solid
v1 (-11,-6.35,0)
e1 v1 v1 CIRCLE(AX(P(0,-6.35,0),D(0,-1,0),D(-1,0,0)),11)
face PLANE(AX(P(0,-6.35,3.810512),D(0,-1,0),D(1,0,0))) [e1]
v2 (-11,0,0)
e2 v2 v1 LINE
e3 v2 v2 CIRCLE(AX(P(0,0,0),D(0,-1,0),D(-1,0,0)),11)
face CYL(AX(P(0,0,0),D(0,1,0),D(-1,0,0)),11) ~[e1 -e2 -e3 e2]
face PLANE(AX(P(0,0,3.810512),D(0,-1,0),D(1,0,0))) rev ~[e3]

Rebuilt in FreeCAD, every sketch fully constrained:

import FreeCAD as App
import Part
import Sketcher
from FreeCAD import Vector

doc = App.newDocument("Part")
body = doc.addObject("PartDesign::Body", "Body")

# Sketch on XZ plane
sketch1 = body.newObject("Sketcher::SketchObject", "Sketch")
sketch1.AttachmentSupport = (doc.getObject("XZ_Plane"), [""])
sketch1.MapMode = "FlatFace"
sketch1.addGeometry(Part.Circle(Vector(0, 0, 0), Vector(0, 0, 1), 11), False)
sketch1.addConstraint([
    Sketcher.Constraint("Coincident", 0, 3, -1, 1),
    Sketcher.Constraint("Diameter", 0, 22.0),
])
pad1 = body.newObject("PartDesign::Pad", "Pad")
pad1.Profile = sketch1
pad1.Length = 6.35

doc.recompute()
